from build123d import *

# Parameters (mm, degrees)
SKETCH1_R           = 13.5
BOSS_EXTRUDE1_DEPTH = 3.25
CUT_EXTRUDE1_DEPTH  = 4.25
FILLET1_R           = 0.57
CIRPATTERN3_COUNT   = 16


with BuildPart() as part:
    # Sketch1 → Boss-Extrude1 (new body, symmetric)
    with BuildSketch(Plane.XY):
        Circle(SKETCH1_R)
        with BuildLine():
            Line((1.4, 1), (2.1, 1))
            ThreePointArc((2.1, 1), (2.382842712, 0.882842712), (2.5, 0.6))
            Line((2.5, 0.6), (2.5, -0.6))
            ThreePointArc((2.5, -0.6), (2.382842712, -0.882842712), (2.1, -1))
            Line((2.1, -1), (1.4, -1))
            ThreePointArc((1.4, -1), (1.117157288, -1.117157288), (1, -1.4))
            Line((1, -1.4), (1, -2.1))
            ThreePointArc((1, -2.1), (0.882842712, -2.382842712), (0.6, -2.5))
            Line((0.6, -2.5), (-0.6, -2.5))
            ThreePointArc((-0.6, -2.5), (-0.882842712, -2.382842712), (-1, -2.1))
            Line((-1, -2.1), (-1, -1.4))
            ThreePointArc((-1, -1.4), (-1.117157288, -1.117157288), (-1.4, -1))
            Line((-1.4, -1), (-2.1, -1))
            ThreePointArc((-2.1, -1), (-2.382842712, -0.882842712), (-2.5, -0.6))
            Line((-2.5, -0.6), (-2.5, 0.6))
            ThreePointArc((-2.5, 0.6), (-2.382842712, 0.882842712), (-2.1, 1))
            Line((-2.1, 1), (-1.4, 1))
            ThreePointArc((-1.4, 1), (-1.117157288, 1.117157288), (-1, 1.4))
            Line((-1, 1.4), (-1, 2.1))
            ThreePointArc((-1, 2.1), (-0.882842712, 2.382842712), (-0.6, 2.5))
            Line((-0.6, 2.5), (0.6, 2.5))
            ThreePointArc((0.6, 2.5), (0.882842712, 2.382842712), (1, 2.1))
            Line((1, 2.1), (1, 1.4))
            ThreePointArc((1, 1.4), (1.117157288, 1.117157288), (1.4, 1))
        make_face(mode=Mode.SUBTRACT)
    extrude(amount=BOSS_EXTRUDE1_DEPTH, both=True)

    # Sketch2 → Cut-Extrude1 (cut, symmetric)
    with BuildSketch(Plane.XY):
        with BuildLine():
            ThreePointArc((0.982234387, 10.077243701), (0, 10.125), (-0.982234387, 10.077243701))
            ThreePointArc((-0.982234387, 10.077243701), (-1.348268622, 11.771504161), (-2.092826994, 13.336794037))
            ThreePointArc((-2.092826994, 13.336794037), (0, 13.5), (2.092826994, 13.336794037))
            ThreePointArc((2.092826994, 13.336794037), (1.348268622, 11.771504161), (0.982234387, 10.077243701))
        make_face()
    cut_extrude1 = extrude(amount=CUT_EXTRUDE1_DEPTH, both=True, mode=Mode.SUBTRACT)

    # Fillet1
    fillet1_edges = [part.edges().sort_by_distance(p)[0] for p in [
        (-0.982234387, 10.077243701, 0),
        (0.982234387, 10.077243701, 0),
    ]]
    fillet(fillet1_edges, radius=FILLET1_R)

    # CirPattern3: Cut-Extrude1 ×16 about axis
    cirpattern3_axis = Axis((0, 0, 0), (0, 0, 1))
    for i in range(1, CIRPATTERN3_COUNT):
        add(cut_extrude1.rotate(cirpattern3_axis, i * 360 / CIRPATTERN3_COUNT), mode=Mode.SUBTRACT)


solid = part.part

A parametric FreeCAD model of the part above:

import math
import FreeCAD as App
import Part
import Sketcher

V = App.Vector


def edges_at(feature, points):
    """Names of the edges that pass closest to the given points."""
    edges = feature.Shape.Edges
    near = lambda p: min(range(len(edges)), key=lambda i: edges[i].distToShape(Part.Vertex(*p))[0])
    return sorted({f"Edge{near(p) + 1}" for p in points})

doc = App.newDocument("Part")
params = doc.addObject("Spreadsheet::Sheet", "Params")
for row, (alias, value) in enumerate([
    ("sketch1_diameter", "27 mm"),
    ("sketch1_radius", "0.4 mm"),
    ("sketch1_width", "0.7 mm"),
    ("sketch1_width2", "1.2 mm"),
    ("pad1_length", "6.5 mm"),
    ("sketch2_radius", "13.5 mm"),
    ("pocket1_length", "8.5 mm"),
    ("fillet_radius", "0.57 mm"),
], start=1):
    params.set(f"A{row}", alias)
    params.set(f"B{row}", "=" + value)
    params.setAlias(f"B{row}", alias)

body = doc.addObject("PartDesign::Body", "Body")

# Sketch on XY plane
sketch1 = body.newObject("Sketcher::SketchObject", "Sketch")
sketch1.AttachmentSupport = (doc.getObject("XY_Plane"), [""])
sketch1.MapMode = "FlatFace"
sketch1.addGeometry([
    Part.Circle(V(0, 0, 0), V(0, 0, 1), 13.5),  # 0
    Part.ArcOfCircle(Part.Circle(V(1.4, 1.4, 0), V(0, 0, 1), 0.4), math.radians(-180), math.radians(-90)),  # 1
    Part.LineSegment(V(1.4, 1, 0), V(2.1, 1, 0)),  # 2
    Part.ArcOfCircle(Part.Circle(V(2.1, 0.6, 0), V(0, 0, 1), 0.4), math.radians(0), math.radians(90)),  # 3
    Part.LineSegment(V(2.5, 0.6, 0), V(2.5, -0.6, 0)),  # 4
    Part.ArcOfCircle(Part.Circle(V(2.1, -0.6, 0), V(0, 0, 1), 0.4), math.radians(-90), math.radians(0)),  # 5
    Part.LineSegment(V(2.1, -1, 0), V(1.4, -1, 0)),  # 6
    Part.ArcOfCircle(Part.Circle(V(1.4, -1.4, 0), V(0, 0, 1), 0.4), math.radians(90), math.radians(180)),  # 7
    Part.LineSegment(V(1, -1.4, 0), V(1, -2.1, 0)),  # 8
    Part.ArcOfCircle(Part.Circle(V(0.6, -2.1, 0), V(0, 0, 1), 0.4), math.radians(-90), math.radians(0)),  # 9
    Part.LineSegment(V(0.6, -2.5, 0), V(-0.6, -2.5, 0)),  # 10
    Part.ArcOfCircle(Part.Circle(V(-0.6, -2.1, 0), V(0, 0, 1), 0.4), math.radians(-180), math.radians(-90)),  # 11
    Part.LineSegment(V(-1, -2.1, 0), V(-1, -1.4, 0)),  # 12
    Part.ArcOfCircle(Part.Circle(V(-1.4, -1.4, 0), V(0, 0, 1), 0.4), math.radians(0), math.radians(90)),  # 13
    Part.LineSegment(V(-1.4, -1, 0), V(-2.1, -1, 0)),  # 14
    Part.ArcOfCircle(Part.Circle(V(-2.1, -0.6, 0), V(0, 0, 1), 0.4), math.radians(-180), math.radians(-90)),  # 15
    Part.LineSegment(V(-2.5, -0.6, 0), V(-2.5, 0.6, 0)),  # 16
    Part.ArcOfCircle(Part.Circle(V(-2.1, 0.6, 0), V(0, 0, 1), 0.4), math.radians(90), math.radians(180)),  # 17
    Part.LineSegment(V(-2.1, 1, 0), V(-1.4, 1, 0)),  # 18
    Part.ArcOfCircle(Part.Circle(V(-1.4, 1.4, 0), V(0, 0, 1), 0.4), math.radians(-90), math.radians(0)),  # 19
    Part.LineSegment(V(-1, 1.4, 0), V(-1, 2.1, 0)),  # 20
    Part.ArcOfCircle(Part.Circle(V(-0.6, 2.1, 0), V(0, 0, 1), 0.4), math.radians(90), math.radians(180)),  # 21
    Part.LineSegment(V(-0.6, 2.5, 0), V(0.6, 2.5, 0)),  # 22
    Part.ArcOfCircle(Part.Circle(V(0.6, 2.1, 0), V(0, 0, 1), 0.4), math.radians(0), math.radians(90)),  # 23
    Part.LineSegment(V(1, 2.1, 0), V(1, 1.4, 0)),  # 24
], False)
sketch1.addConstraint([
    Sketcher.Constraint("Tangent", 1, 2, 2, 1),
    Sketcher.Constraint("Tangent", 2, 2, 3, 2),
    Sketcher.Constraint("Tangent", 3, 1, 4, 1),
    Sketcher.Constraint("Tangent", 4, 2, 5, 2),
    Sketcher.Constraint("Tangent", 5, 1, 6, 1),
    Sketcher.Constraint("Tangent", 6, 2, 7, 1),
    Sketcher.Constraint("Tangent", 7, 2, 8, 1),
    Sketcher.Constraint("Tangent", 8, 2, 9, 2),
    Sketcher.Constraint("Tangent", 9, 1, 10, 1),
    Sketcher.Constraint("Tangent", 10, 2, 11, 2),
    Sketcher.Constraint("Tangent", 11, 1, 12, 1),
    Sketcher.Constraint("Tangent", 12, 2, 13, 1),
    Sketcher.Constraint("Tangent", 13, 2, 14, 1),
    Sketcher.Constraint("Tangent", 14, 2, 15, 2),
    Sketcher.Constraint("Tangent", 15, 1, 16, 1),
    Sketcher.Constraint("Tangent", 16, 2, 17, 2),
    Sketcher.Constraint("Tangent", 17, 1, 18, 1),
    Sketcher.Constraint("Tangent", 18, 2, 19, 1),
    Sketcher.Constraint("Tangent", 19, 2, 20, 1),
    Sketcher.Constraint("Tangent", 20, 2, 21, 2),
    Sketcher.Constraint("Tangent", 21, 1, 22, 1),
    Sketcher.Constraint("Tangent", 22, 2, 23, 2),
    Sketcher.Constraint("Tangent", 23, 1, 24, 1),
    Sketcher.Constraint("Tangent", 24, 2, 1, 1),
    Sketcher.Constraint("Horizontal", 2),
    Sketcher.Constraint("Vertical", 4),
    Sketcher.Constraint("Horizontal", 6),
    Sketcher.Constraint("Vertical", 8),
    Sketcher.Constraint("Horizontal", 10),
    Sketcher.Constraint("Vertical", 12),
    Sketcher.Constraint("Horizontal", 14),
    Sketcher.Constraint("Vertical", 16),
    Sketcher.Constraint("Horizontal", 18),
    Sketcher.Constraint("Vertical", 20),
    Sketcher.Constraint("Horizontal", 22),
    Sketcher.Constraint("Vertical", 24),
    Sketcher.Constraint("Coincident", 0, 3, -1, 1),
    Sketcher.Constraint("Equal", 1, 3),
    Sketcher.Constraint("Equal", 3, 5),
    Sketcher.Constraint("Equal", 5, 7),
    Sketcher.Constraint("Equal", 7, 9),
    Sketcher.Constraint("Equal", 9, 11),
    Sketcher.Constraint("Equal", 11, 13),
    Sketcher.Constraint("Equal", 13, 15),
    Sketcher.Constraint("Equal", 15, 17),
    Sketcher.Constraint("Equal", 17, 19),
    Sketcher.Constraint("Equal", 19, 21),
    Sketcher.Constraint("Equal", 21, 23),
    Sketcher.Constraint("Symmetric", 1, 3, 13, 3, -1, 1),
    Sketcher.Constraint("Symmetric", 5, 3, 17, 3, -1, 1),
    Sketcher.Constraint("Symmetric", 9, 3, 21, 3, -1, 1),
    Sketcher.Constraint("Symmetric", 7, 3, 13, 3, -2),
    Sketcher.Constraint("Equal", 22, 4),
    Sketcher.Constraint("Equal", 18, 8),
    Sketcher.Constraint("Diameter", 0, 27.0),
    Sketcher.Constraint("Radius", 1, 0.4),
    Sketcher.Constraint("DistanceX", 2, 1, 2, 2, 0.7),
    Sketcher.Constraint("DistanceX", 10, 2, 10, 1, 1.2),
])
sketch1.setExpression("Constraints[54]", "Params.sketch1_diameter")
sketch1.setExpression("Constraints[55]", "Params.sketch1_radius")
sketch1.setExpression("Constraints[56]", "Params.sketch1_width")
sketch1.setExpression("Constraints[57]", "Params.sketch1_width2")
pad1 = body.newObject("PartDesign::Pad", "Pad")
pad1.Profile = sketch1
pad1.setExpression("Length", "Params.pad1_length")
pad1.Midplane = True

# Sketch on XY plane
sketch2 = body.newObject("Sketcher::SketchObject", "Sketch001")
sketch2.AttachmentSupport = (doc.getObject("XY_Plane"), [""])
sketch2.MapMode = "FlatFace"
sketch2.addGeometry([
    Part.ArcOfCircle(Part.Circle(V(0, 0, 0), V(0, 0, 1), 10.1), math.radians(84.43), math.radians(95.57)),
    Part.ArcOfCircle(Part.Circle(V(8.5, 9.3, 0), V(0, 0, 1), 7.5), math.radians(148), math.radians(174)),
    Part.ArcOfCircle(Part.Circle(V(0, 0, 0), V(0, 0, 1), 13.5), math.radians(81.08), math.radians(98.92)),
    Part.ArcOfCircle(Part.Circle(V(-8.5, 9.3, 0), V(0, 0, 1), 7.5), math.radians(6), math.radians(32)),
], False)
sketch2.addConstraint([
    Sketcher.Constraint("Coincident", 0, 1, 1, 2),
    Sketcher.Constraint("Coincident", 1, 1, 2, 1),
    Sketcher.Constraint("Coincident", 2, 2, 3, 2),
    Sketcher.Constraint("Coincident", 3, 1, 0, 2),
    Sketcher.Constraint("Coincident", 0, 3, -1, 1),
    Sketcher.Constraint("Coincident", 2, 3, -1, 1),
    Sketcher.Constraint("Equal", 1, 3),
    Sketcher.Constraint("Symmetric", 1, 3, 3, 3, -2),
    Sketcher.Constraint("Radius", 2, 13.5),
    Sketcher.Constraint("Radius", 0, 10.125),
    Sketcher.Constraint("Radius", 1, 7.51327),
    Sketcher.Constraint("DistanceX", 3, 3, 0, 1, 9.442301),
    Sketcher.Constraint("DistanceY", 1, 3, 0, 1, 0.728868),
])
sketch2.setExpression("Constraints[8]", "Params.sketch2_radius")
pocket1 = body.newObject("PartDesign::Pocket", "Pocket")
pocket1.Profile = sketch2
pocket1.setExpression("Length", "Params.pocket1_length")
pocket1.Midplane = True
doc.recompute()

fillet = body.newObject("PartDesign::Fillet", "Fillet")
fillet.Base = (pocket1, edges_at(pocket1, [(-0.982, 10.077, 0), (0.982, 10.077, 0)]))
fillet.setExpression("Radius", "Params.fillet_radius")
doc.recompute()

polarpattern = body.newObject("PartDesign::PolarPattern", "PolarPattern")
polarpattern.Originals = [pocket1]
polarpattern.Axis = (doc.getObject("Z_Axis"), [""])
polarpattern.Angle = 360
polarpattern.Occurrences = 16
body.Tip = polarpattern

doc.recompute()
